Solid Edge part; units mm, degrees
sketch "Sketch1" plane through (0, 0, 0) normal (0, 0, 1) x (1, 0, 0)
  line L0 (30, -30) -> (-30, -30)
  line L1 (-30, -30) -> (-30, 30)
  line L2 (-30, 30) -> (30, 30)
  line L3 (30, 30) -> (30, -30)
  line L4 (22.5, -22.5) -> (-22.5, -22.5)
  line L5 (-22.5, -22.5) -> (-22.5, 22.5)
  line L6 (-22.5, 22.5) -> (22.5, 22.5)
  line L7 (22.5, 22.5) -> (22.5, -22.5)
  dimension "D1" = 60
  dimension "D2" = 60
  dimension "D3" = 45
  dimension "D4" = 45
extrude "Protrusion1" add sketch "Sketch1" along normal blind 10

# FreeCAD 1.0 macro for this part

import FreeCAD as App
import Part
import Sketcher


def add_polygon(sketch, points):
    """Adds a closed chain of lines whose ends are joined by coincident constraints."""
    first, n = sketch.GeometryCount, len(points)
    for a, b in zip(points, points[1:] + points[:1]):
        sketch.addGeometry(Part.LineSegment(App.Vector(*a, 0), App.Vector(*b, 0)), False)
    for i in range(n):
        sketch.addConstraint(Sketcher.Constraint("Coincident", first + i, 2, first + (i + 1) % n, 1))

doc = App.newDocument("Part")
body = doc.addObject("PartDesign::Body", "Body")

# Sketch on XY plane
sketch1 = body.newObject("Sketcher::SketchObject", "Sketch")
sketch1.AttachmentSupport = (doc.getObject("XY_Plane"), [""])
sketch1.MapMode = "FlatFace"
add_polygon(sketch1, [(-30, -30), (30, -30), (30, 30), (-30, 30)])  # lines 0-3
add_polygon(sketch1, [(22.5, 22.5), (22.5, -22.5), (-22.5, -22.5), (-22.5, 22.5)])  # lines 4-7
sketch1.addConstraint(Sketcher.Constraint("Horizontal", 0))
sketch1.addConstraint(Sketcher.Constraint("Vertical", 1))
sketch1.addConstraint(Sketcher.Constraint("Horizontal", 2))
sketch1.addConstraint(Sketcher.Constraint("Vertical", 3))
sketch1.addConstraint(Sketcher.Constraint("Vertical", 4))
sketch1.addConstraint(Sketcher.Constraint("Horizontal", 5))
sketch1.addConstraint(Sketcher.Constraint("Vertical", 6))
sketch1.addConstraint(Sketcher.Constraint("Horizontal", 7))
sketch1.addConstraint(Sketcher.Constraint("Symmetric", 0, 2, 2, 2, -1, 1))
sketch1.addConstraint(Sketcher.Constraint("Symmetric", 4, 2, 6, 2, -1, 1))
sketch1.addConstraint(Sketcher.Constraint("Equal", 2, 1))
sketch1.addConstraint(Sketcher.Constraint("Equal", 7, 4))
sketch1.addConstraint(Sketcher.Constraint("DistanceX", -1, 1, 0, 2, 30.0))
sketch1.addConstraint(Sketcher.Constraint("DistanceX", 5, 2, 5, 1, 45.0))
pad1 = body.newObject("PartDesign::Pad", "Pad")
pad1.Profile = sketch1
pad1.Length = 10

doc.recompute()
